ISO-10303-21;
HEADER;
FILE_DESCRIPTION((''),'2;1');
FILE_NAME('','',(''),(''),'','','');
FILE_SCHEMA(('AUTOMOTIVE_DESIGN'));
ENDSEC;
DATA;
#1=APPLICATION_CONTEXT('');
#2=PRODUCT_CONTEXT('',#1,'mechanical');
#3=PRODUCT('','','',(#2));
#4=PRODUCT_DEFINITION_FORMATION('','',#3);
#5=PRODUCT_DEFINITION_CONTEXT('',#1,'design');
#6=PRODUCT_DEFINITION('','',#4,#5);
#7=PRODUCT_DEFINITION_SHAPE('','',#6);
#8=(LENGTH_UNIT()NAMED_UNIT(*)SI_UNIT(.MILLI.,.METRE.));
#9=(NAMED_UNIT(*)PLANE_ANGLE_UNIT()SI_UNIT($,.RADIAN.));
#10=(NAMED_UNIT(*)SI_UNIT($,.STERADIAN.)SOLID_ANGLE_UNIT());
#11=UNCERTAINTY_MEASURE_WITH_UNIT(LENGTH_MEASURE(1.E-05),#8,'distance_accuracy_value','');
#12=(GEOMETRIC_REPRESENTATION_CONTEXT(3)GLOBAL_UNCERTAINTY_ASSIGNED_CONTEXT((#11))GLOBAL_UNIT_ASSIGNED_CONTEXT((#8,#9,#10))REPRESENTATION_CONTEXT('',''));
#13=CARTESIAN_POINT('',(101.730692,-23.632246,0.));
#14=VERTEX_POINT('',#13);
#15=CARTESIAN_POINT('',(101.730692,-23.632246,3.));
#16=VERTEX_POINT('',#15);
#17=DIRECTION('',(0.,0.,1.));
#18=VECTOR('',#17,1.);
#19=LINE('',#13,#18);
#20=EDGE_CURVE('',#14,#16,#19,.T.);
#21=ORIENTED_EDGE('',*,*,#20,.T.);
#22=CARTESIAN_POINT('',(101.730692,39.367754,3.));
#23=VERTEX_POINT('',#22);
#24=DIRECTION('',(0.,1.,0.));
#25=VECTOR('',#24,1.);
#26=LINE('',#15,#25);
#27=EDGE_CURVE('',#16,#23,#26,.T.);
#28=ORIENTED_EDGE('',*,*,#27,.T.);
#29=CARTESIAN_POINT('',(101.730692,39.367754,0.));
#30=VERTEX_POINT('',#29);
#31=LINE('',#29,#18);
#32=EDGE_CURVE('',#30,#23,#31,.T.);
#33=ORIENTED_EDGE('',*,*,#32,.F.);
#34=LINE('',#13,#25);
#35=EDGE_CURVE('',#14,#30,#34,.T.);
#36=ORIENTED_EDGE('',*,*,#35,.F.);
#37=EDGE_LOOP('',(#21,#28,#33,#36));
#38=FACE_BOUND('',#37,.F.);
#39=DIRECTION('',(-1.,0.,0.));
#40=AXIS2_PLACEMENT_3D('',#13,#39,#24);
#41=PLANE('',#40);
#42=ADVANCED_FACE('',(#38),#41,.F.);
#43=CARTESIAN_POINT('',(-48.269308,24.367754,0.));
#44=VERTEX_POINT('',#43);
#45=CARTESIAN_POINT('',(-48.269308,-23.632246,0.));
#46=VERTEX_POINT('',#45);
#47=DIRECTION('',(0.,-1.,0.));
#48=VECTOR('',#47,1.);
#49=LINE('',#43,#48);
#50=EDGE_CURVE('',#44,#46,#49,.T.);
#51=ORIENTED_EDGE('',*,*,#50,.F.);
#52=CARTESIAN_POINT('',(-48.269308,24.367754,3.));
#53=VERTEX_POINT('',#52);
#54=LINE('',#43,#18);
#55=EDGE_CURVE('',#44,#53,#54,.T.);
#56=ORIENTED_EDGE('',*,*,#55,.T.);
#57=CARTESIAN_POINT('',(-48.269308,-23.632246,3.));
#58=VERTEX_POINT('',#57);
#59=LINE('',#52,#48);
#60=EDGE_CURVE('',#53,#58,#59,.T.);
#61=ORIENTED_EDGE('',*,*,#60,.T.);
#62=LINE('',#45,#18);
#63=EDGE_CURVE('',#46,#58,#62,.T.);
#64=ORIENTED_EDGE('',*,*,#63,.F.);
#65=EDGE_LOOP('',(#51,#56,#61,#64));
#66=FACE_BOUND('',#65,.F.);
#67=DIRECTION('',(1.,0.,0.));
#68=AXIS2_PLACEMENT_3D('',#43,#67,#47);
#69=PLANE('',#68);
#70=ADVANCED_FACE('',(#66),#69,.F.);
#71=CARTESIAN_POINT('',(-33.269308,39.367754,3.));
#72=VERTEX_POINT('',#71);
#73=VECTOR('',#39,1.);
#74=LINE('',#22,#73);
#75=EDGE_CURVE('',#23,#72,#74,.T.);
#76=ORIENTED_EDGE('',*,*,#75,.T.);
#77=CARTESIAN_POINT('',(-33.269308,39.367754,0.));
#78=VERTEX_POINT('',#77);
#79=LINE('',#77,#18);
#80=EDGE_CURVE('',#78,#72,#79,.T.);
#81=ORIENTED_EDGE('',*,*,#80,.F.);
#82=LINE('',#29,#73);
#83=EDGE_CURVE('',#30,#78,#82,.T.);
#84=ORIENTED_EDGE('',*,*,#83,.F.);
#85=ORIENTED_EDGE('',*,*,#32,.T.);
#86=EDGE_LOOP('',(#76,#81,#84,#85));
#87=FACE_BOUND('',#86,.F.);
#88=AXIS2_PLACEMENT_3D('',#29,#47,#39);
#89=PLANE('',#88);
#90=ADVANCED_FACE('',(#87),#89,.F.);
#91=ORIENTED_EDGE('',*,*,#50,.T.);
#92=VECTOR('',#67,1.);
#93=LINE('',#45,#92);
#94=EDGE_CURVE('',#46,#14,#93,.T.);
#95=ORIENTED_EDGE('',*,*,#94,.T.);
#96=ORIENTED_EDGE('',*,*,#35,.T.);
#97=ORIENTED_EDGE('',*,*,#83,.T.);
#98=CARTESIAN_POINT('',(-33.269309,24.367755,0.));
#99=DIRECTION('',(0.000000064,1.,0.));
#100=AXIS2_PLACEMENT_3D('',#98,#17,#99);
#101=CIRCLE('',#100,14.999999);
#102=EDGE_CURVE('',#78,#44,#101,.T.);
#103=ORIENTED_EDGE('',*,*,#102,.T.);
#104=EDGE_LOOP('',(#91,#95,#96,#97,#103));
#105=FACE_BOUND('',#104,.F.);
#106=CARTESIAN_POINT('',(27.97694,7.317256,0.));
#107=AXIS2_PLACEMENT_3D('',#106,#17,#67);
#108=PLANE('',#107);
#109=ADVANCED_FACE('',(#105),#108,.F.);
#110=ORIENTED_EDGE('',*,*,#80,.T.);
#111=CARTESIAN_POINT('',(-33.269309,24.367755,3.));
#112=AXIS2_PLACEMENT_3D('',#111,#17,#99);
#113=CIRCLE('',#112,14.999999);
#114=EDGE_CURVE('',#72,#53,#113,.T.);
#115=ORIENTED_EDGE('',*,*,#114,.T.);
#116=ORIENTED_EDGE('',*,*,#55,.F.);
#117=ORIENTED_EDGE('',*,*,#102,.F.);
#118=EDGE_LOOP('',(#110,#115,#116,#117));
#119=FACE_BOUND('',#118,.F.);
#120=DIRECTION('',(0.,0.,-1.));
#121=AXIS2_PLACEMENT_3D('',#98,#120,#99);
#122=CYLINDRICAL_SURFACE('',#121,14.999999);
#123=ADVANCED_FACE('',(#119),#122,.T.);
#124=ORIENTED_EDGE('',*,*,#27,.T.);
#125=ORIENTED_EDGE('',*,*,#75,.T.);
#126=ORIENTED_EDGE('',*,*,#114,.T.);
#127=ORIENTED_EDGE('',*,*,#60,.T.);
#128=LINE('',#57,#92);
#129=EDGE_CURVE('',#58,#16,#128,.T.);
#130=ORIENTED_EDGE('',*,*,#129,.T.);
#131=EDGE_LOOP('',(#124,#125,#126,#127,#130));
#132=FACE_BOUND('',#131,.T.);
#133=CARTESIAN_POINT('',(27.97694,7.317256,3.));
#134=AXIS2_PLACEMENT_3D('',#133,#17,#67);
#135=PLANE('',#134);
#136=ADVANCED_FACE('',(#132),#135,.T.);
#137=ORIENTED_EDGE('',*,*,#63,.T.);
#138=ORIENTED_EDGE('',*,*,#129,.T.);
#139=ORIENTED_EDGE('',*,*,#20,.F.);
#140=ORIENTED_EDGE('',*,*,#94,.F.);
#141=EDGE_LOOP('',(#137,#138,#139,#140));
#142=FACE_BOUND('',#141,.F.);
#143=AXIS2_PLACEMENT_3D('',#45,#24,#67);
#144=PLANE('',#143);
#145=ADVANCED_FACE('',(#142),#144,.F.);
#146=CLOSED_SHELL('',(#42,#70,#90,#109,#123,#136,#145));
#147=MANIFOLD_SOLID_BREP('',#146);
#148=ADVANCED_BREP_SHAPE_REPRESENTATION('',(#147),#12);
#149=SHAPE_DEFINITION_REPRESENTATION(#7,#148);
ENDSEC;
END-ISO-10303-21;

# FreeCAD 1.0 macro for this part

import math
import FreeCAD as App
import Part
import Sketcher

V = App.Vector
Q = App.Units.Quantity

doc = App.newDocument("Part")
body = doc.addObject("PartDesign::Body", "Body")

sketch1 = doc.addObject("Sketcher::SketchObject", "Sketch")
body.addObject(sketch1)
sketch1.AttachmentSupport = (doc.XY_Plane, [""])
sketch1.MapMode = "FlatFace"
sketch1.addGeometry([
    Part.LineSegment(V(102, 39, 0), V(-33, 39, 0)),
    Part.ArcOfCircle(Part.Circle(V(-33, 24, 0), V(0, 0, 1), 15), math.radians(90), math.radians(180)),
    Part.LineSegment(V(-48, 24, 0), V(-48, -24, 0)),
    Part.LineSegment(V(-48, -24, 0), V(102, -24, 0)),
    Part.LineSegment(V(102, -24, 0), V(102, 39, 0)),
], False)
sketch1.addConstraint([
    Sketcher.Constraint("Tangent", 0, 2, 1, 1),
    Sketcher.Constraint("Tangent", 1, 2, 2, 1),
    Sketcher.Constraint("Coincident", 2, 2, 3, 1),
    Sketcher.Constraint("Coincident", 3, 2, 4, 1),
    Sketcher.Constraint("Coincident", 4, 2, 0, 1),
    Sketcher.Constraint("Horizontal", 0),
    Sketcher.Constraint("Vertical", 2),
    Sketcher.Constraint("Horizontal", 3),
    Sketcher.Constraint("Vertical", 4),
    Sketcher.Constraint("Radius", 1, Q("14.999999 mm")),
    Sketcher.Constraint("DistanceX", 0, 2, 0, 1, Q("135 mm")),
    Sketcher.Constraint("DistanceY", 2, 2, 2, 1, Q("48 mm")),
    Sketcher.Constraint("DistanceX", 1, 3, -1, 1, Q("33.269309 mm")),
    Sketcher.Constraint("DistanceY", -1, 1, 1, 3, Q("24.367755 mm")),
])
pad1 = doc.addObject("PartDesign::Pad", "Pad")
body.addObject(pad1)
pad1.Profile = sketch1
pad1.Length = 3

doc.recompute()
